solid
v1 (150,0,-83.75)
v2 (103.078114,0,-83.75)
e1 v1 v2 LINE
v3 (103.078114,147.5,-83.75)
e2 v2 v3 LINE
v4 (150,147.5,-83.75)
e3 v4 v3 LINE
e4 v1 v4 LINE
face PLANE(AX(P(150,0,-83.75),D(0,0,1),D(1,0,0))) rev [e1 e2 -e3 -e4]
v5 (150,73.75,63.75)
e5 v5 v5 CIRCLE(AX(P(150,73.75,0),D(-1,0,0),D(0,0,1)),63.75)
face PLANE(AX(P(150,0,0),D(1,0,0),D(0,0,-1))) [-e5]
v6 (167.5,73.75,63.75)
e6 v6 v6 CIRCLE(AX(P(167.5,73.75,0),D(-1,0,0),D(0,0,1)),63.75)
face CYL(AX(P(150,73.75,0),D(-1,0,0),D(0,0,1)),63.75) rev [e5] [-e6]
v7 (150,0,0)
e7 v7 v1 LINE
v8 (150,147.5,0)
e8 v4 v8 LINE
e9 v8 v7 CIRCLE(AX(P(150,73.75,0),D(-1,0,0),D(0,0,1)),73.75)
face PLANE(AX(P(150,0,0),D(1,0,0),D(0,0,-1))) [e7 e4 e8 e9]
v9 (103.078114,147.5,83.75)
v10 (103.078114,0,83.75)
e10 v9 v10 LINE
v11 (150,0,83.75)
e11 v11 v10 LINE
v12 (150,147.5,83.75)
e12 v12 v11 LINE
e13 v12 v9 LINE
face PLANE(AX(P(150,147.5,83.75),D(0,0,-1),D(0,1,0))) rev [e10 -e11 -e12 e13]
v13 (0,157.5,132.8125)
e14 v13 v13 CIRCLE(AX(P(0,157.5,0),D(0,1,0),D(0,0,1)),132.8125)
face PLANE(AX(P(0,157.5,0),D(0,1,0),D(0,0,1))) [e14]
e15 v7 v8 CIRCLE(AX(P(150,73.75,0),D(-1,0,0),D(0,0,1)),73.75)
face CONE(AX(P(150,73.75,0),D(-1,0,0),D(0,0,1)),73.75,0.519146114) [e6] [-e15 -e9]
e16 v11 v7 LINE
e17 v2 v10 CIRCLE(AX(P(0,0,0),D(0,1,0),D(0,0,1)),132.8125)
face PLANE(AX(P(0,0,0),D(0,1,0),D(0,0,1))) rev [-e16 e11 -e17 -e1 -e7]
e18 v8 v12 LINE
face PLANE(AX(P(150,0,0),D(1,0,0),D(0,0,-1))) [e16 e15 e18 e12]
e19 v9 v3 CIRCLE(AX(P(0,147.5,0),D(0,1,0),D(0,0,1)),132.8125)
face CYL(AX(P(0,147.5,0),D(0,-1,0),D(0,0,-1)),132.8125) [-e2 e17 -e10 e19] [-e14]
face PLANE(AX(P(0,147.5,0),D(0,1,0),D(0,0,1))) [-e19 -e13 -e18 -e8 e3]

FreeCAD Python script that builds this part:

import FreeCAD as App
import Part
import Sketcher

V = App.Vector


def add_polygon(sketch, points):
    """Adds a closed chain of lines whose ends are joined by coincident constraints."""
    first, n = sketch.GeometryCount, len(points)
    for a, b in zip(points, points[1:] + points[:1]):
        sketch.addGeometry(Part.LineSegment(App.Vector(*a, 0), App.Vector(*b, 0)), False)
    for i in range(n):
        sketch.addConstraint(Sketcher.Constraint("Coincident", first + i, 2, first + (i + 1) % n, 1))

doc = App.newDocument("Part")
body = doc.addObject("PartDesign::Body", "Body")

# Sketch on XZ plane
sketch1 = body.newObject("Sketcher::SketchObject", "Sketch")
sketch1.AttachmentSupport = (doc.getObject("XZ_Plane"), [""])
sketch1.MapMode = "FlatFace"
sketch1.addGeometry(Part.Circle(V(0, 0, 0), V(0, 0, 1), 132.8125), False)
sketch1.addConstraint([
    Sketcher.Constraint("Coincident", 0, 3, -1, 1),
    Sketcher.Constraint("Diameter", 0, 265.625),
])
pad1 = body.newObject("PartDesign::Pad", "Pad")
pad1.Profile = sketch1
pad1.Length = 147.5
pad1.Reversed = True

# Sketch on YZ plane
sketch2 = body.newObject("Sketcher::SketchObject", "Sketch001")
sketch2.AttachmentSupport = (doc.getObject("YZ_Plane"), [""])
sketch2.MapMode = "FlatFace"
add_polygon(sketch2, [(147.5, 83.75), (0, 83.75), (0, -83.75), (147.5, -83.75)])  # lines 0-3
sketch2.addConstraint([
    Sketcher.Constraint("Horizontal", 0),
    Sketcher.Constraint("Vertical", 1),
    Sketcher.Constraint("Horizontal", 2),
    Sketcher.Constraint("Vertical", 3),
    Sketcher.Constraint("Symmetric", 0, 2, 1, 2, -1, 1),
    Sketcher.Constraint("DistanceX", 0, 2, 0, 1, 147.5),
    Sketcher.Constraint("DistanceY", 1, 2, 1, 1, 167.5),
])
pad2 = body.newObject("PartDesign::Pad", "Pad001")
pad2.Profile = sketch2
pad2.Length = 150

# Sketch on XY plane
sketch3 = body.newObject("Sketcher::SketchObject", "Sketch002")
sketch3.AttachmentSupport = (doc.getObject("XY_Plane"), [""])
sketch3.MapMode = "FlatFace"
add_polygon(sketch3, [(150, 10), (150, 0), (167.5, 10)])  # lines 0-2
sketch3.addGeometry(Part.LineSegment(V(150, 73.75, 0), V(167.5, 73.75, 0)), True)  # axis
sketch3.addConstraint([
    Sketcher.Constraint("Vertical", 0),
    Sketcher.Constraint("Horizontal", 2),
    Sketcher.Constraint("Horizontal", 3),
    Sketcher.Constraint("PointOnObject", 0, 2, -1),
    Sketcher.Constraint("Vertical", 2, 2, 3, 1),
    Sketcher.Constraint("Vertical", 1, 2, 3, 2),
    Sketcher.Constraint("DistanceY", 0, 2, 0, 1, 10.0),
    Sketcher.Constraint("DistanceX", 2, 2, 2, 1, 17.5),
    Sketcher.Constraint("DistanceX", -1, 1, 0, 2, 150.0),
    Sketcher.Constraint("DistanceY", -1, 1, 3, 1, 73.75),
])
revolution = body.newObject("PartDesign::Revolution", "Revolution")
revolution.Profile = sketch3
revolution.ReferenceAxis = (sketch3, ["Axis0"])
revolution.Angle = 360

# Sketch on XZ plane
sketch4 = body.newObject("Sketcher::SketchObject", "Sketch003")
sketch4.AttachmentSupport = (doc.getObject("XZ_Plane"), [""])
sketch4.MapMode = "FlatFace"
sketch4.AttachmentOffset = App.Placement(V(0, 0, -147.5), App.Rotation())
sketch4.addGeometry(Part.Circle(V(0, 0, 0), V(0, 0, 1), 132.8125), False)
sketch4.addConstraint([
    Sketcher.Constraint("Coincident", 0, 3, -1, 1),
    Sketcher.Constraint("Diameter", 0, 265.625),
])
pad3 = body.newObject("PartDesign::Pad", "Pad002")
pad3.Profile = sketch4
pad3.Length = 10
pad3.Reversed = True

doc.recompute()
